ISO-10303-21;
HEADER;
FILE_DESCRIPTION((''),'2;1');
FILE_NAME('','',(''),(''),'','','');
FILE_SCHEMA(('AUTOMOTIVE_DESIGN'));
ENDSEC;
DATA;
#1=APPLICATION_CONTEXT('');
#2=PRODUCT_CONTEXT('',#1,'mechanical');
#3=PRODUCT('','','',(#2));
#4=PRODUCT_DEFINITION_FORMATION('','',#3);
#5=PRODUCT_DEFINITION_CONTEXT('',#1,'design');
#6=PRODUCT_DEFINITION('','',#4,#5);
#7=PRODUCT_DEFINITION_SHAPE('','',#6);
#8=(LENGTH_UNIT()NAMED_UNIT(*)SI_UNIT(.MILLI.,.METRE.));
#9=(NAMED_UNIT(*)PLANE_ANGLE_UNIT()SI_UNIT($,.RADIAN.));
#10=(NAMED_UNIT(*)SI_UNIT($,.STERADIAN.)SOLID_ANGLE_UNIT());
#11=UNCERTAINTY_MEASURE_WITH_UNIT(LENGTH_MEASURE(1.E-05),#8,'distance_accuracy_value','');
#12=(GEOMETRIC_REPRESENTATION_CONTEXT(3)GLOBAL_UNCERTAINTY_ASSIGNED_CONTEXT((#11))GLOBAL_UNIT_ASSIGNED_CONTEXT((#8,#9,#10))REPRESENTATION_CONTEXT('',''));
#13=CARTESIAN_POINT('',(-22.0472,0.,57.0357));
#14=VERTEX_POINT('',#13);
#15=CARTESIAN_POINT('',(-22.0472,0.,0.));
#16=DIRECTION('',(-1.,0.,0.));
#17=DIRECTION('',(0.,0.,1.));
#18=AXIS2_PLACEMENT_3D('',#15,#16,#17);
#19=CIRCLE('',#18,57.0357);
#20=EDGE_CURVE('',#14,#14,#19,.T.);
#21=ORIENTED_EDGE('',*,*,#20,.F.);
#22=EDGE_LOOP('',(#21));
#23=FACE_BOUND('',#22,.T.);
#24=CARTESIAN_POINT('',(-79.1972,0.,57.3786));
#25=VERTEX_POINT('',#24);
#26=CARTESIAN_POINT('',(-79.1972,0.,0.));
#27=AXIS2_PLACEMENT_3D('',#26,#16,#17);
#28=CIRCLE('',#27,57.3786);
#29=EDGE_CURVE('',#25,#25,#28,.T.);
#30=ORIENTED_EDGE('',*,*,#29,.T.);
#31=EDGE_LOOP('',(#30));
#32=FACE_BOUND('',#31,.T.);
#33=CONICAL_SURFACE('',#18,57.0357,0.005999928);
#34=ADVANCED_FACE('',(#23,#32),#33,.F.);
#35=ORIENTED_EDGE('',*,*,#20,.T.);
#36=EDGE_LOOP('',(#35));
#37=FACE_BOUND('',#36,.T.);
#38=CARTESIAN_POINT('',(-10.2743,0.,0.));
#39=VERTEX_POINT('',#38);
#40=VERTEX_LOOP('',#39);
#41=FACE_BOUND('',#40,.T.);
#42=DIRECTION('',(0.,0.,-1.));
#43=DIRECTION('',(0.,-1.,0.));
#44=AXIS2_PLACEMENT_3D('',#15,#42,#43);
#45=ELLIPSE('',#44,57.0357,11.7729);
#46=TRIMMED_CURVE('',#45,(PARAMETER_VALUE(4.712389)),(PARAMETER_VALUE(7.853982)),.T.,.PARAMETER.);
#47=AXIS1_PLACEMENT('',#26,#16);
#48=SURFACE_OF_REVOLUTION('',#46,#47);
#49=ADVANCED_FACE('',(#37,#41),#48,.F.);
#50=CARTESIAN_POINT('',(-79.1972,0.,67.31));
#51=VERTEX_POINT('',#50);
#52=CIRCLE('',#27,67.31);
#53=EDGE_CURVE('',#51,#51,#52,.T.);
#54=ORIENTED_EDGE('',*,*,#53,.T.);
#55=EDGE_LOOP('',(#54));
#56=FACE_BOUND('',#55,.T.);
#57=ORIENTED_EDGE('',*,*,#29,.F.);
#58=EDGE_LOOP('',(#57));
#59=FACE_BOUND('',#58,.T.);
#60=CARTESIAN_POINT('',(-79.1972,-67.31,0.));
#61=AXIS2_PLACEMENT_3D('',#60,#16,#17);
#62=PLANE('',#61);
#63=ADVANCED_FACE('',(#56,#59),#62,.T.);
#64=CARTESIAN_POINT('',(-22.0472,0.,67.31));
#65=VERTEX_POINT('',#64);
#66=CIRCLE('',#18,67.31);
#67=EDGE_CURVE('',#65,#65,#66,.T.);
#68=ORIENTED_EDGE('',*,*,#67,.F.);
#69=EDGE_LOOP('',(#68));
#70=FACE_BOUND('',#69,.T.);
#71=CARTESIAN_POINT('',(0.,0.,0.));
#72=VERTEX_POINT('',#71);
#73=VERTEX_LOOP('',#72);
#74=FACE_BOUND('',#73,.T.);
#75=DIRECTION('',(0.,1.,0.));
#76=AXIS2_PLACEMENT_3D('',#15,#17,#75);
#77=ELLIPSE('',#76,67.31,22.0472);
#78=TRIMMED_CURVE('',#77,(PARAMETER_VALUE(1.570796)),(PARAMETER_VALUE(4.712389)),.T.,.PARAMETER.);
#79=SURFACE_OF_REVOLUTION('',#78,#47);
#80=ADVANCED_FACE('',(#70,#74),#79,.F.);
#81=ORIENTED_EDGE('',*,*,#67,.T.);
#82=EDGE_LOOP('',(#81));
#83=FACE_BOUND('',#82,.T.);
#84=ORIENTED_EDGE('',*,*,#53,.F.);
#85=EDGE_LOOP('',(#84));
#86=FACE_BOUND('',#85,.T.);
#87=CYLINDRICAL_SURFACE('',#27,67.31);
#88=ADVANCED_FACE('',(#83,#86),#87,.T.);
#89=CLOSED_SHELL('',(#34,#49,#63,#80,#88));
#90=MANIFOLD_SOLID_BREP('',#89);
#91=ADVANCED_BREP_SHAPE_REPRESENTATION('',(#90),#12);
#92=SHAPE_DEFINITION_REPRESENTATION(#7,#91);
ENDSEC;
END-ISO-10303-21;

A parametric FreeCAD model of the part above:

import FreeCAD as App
import Part
import Sketcher

V = App.Vector
Q = App.Units.Quantity

doc = App.newDocument("Part")
body = doc.addObject("PartDesign::Body", "Body")

sketch1 = body.newObject("Sketcher::SketchObject", "Sketch")
sketch1.AttachmentSupport = (doc.getObject("XY_Plane"), [""])
sketch1.MapMode = "FlatFace"
sketch1.addGeometry([
    Part.LineSegment(V(-79.1972, -67.31, 0), V(-22.0472, -67.31, 0)),
    Part.BSplineCurve([V(-22.0472, -67.31, 0), V(0, -67.31, 0), V(0, 0, 0)], [3, 3], [3.141592654, 4.71238898], False, 2, [1, 0.707106781, 1], False),
    Part.LineSegment(V(0, 0, 0), V(-10.2743, 0, 0)),
    Part.BSplineCurve([V(-22.0472, -57.0357, 0), V(-10.2743, -57.0357, 0), V(-10.2743, 0, 0)], [3, 3], [0, 1.570796327], False, 2, [1, 0.707106781, 1], False),
    Part.LineSegment(V(-22.0472, -57.0357, 0), V(-79.1972, -57.3786, 0)),
    Part.LineSegment(V(-79.1972, -57.3786, 0), V(-79.1972, -67.31, 0)),
], False)
sketch1.addConstraint([
    Sketcher.Constraint("Block", 1),
    Sketcher.Constraint("Block", 3),
    Sketcher.Constraint("Coincident", 0, 2, 1, 1),
    Sketcher.Constraint("Coincident", 1, 2, 2, 1),
    Sketcher.Constraint("Coincident", 2, 2, 3, 2),
    Sketcher.Constraint("Coincident", 3, 1, 4, 1),
    Sketcher.Constraint("Coincident", 4, 2, 5, 1),
    Sketcher.Constraint("Coincident", 5, 2, 0, 1),
    Sketcher.Constraint("Horizontal", 0),
    Sketcher.Constraint("Vertical", 5),
    Sketcher.Constraint("DistanceX", 0, 1, 0, 2, Q("2.25 in")),
    Sketcher.Constraint("DistanceY", 5, 2, 5, 1, Q("0.391 in")),
])
revolution = body.newObject("PartDesign::Revolution", "Revolution")
revolution.Profile = sketch1
revolution.ReferenceAxis = (sketch1, ["H_Axis"])
revolution.Angle = 360

doc.recompute()
